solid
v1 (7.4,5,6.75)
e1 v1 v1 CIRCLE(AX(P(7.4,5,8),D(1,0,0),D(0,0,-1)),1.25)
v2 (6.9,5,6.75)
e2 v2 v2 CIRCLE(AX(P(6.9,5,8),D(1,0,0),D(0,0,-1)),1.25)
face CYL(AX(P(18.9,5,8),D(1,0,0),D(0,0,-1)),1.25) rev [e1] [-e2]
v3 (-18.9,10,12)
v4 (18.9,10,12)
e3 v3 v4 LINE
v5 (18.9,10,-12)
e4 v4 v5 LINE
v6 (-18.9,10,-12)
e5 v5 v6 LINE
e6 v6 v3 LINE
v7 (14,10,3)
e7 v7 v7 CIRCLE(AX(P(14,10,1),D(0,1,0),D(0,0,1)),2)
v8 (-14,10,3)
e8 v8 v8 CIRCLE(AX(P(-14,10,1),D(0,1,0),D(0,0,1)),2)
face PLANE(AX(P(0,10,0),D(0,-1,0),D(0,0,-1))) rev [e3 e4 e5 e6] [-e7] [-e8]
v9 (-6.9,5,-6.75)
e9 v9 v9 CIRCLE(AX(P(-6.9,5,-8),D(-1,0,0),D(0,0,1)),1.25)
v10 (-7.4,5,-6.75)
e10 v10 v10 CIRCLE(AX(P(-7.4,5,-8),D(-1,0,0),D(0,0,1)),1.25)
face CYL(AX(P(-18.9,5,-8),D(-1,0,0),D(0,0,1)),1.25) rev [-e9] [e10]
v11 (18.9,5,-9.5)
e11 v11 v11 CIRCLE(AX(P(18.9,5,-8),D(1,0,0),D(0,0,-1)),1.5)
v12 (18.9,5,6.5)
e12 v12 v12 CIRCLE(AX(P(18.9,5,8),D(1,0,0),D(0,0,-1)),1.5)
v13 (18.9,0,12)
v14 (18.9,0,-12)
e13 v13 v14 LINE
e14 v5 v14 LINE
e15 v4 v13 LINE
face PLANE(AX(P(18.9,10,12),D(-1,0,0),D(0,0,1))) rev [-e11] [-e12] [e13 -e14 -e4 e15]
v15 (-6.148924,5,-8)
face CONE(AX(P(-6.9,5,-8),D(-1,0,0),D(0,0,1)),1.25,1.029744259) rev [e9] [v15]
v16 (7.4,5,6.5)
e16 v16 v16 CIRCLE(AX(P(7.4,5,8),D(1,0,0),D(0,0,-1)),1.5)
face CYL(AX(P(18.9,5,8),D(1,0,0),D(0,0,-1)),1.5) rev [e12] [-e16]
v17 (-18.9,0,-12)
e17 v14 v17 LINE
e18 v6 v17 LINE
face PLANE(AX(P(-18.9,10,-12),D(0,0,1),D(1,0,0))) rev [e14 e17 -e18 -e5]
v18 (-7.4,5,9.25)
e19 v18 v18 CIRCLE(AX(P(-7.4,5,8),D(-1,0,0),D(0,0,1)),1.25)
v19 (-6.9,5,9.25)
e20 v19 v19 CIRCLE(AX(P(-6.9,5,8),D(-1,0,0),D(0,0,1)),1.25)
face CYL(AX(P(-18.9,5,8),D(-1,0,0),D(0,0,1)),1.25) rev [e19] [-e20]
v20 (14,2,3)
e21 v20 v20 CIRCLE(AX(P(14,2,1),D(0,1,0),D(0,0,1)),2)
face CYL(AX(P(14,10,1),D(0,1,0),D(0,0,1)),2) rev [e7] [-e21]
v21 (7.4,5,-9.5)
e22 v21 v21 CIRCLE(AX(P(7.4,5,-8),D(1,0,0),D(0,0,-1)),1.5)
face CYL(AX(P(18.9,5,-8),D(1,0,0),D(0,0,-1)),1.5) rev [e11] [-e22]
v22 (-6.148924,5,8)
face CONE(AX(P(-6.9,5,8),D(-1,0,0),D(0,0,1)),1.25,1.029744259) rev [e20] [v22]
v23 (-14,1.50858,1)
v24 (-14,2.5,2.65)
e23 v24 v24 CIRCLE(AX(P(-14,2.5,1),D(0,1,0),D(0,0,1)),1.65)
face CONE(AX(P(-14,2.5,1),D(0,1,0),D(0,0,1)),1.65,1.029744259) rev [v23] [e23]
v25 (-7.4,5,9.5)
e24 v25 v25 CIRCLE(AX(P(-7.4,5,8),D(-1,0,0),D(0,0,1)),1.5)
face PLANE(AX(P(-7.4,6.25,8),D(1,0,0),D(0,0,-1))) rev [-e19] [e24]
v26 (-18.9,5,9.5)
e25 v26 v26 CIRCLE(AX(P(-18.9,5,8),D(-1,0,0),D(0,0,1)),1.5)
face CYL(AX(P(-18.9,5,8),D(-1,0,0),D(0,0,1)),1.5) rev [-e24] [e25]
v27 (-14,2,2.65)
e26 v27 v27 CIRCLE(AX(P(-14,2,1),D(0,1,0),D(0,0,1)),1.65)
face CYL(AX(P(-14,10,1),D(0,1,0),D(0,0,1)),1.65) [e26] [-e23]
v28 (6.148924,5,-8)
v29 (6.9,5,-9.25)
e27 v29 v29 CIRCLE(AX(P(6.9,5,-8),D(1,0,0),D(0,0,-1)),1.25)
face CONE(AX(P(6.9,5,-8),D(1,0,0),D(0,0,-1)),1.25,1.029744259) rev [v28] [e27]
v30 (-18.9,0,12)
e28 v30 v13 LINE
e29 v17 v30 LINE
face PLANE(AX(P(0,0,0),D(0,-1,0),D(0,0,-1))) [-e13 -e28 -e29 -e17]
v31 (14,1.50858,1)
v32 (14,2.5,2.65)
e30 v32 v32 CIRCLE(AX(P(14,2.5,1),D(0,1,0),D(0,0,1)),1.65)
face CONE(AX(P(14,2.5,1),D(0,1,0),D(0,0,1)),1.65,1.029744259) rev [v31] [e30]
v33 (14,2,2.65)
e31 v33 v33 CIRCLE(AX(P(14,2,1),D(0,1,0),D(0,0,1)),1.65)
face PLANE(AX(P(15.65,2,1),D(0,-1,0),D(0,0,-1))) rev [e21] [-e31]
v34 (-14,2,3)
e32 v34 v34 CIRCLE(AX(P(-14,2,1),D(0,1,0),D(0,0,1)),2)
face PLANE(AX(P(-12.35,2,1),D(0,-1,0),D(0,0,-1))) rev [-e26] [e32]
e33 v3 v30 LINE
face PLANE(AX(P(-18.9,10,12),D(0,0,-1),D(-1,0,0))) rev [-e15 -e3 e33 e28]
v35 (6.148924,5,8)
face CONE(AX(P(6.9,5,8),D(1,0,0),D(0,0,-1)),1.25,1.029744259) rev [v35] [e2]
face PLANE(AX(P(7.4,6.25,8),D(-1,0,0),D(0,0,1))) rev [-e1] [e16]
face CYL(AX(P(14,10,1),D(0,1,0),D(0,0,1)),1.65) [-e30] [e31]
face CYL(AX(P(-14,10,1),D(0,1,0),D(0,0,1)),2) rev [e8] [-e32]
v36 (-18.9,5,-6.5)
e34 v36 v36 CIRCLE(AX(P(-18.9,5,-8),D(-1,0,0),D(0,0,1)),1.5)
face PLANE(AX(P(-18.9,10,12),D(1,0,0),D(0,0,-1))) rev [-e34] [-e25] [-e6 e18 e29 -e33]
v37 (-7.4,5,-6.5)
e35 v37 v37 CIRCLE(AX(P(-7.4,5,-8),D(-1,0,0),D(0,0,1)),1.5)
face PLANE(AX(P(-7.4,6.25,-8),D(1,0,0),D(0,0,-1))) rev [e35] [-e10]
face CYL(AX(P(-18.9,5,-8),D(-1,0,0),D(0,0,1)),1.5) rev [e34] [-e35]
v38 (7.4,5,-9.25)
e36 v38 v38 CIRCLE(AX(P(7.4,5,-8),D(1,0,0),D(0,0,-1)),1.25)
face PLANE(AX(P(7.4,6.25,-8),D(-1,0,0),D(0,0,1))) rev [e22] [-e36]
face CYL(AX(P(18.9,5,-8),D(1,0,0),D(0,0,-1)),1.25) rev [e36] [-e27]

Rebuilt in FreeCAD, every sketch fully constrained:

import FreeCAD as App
import Part
import Sketcher
from FreeCAD import Vector
Q = App.Units.Quantity

doc = App.newDocument("Part")
params = doc.addObject("Spreadsheet::Sheet", "Params")
for row, (alias, value) in enumerate([
    ("sketch1_height", "24 mm"),
    ("sketch1_width", "37.8 mm"),
    ("pad1_length", "10 mm"),
    ("sketch2_width", "8 mm"),
    ("sketch2_height", "2 mm"),
    ("sketch2_width2", "0.5 mm"),
    ("sketch2_height2", "0.35 mm"),
    ("groove_angle", "360 deg"),
    ("linearpattern_pitch", "28 mm"),
    ("sketch3_width", "11.5 mm"),
    ("sketch3_width2", "0.5 mm"),
    ("sketch3_height", "1.5 mm"),
    ("sketch3_height2", "0.25 mm"),
    ("groove2_angle", "360 deg"),
    ("linearpattern2_pitch", "16 mm"),
    ("sketch4_width", "0.5 mm"),
    ("sketch4_width2", "11.5 mm"),
    ("sketch4_height", "1.5 mm"),
    ("sketch4_height2", "0.25 mm"),
    ("groove3_angle", "360 deg"),
], start=1):
    params.set(f"A{row}", alias)
    params.set(f"B{row}", "=" + value)
    params.setAlias(f"B{row}", alias)

body = doc.addObject("PartDesign::Body", "Body")

# Sketch on XZ plane
sketch1 = body.newObject("Sketcher::SketchObject", "Sketch")
sketch1.AttachmentSupport = (doc.getObject("XZ_Plane"), [""])
sketch1.MapMode = "FlatFace"
sketch1.addGeometry(Part.LineSegment(Vector(-18.9, -12, 0), Vector(-18.9, 12, 0)), False)
sketch1.addGeometry(Part.LineSegment(Vector(-18.9, 12, 0), Vector(18.9, 12, 0)), False)
sketch1.addGeometry(Part.LineSegment(Vector(18.9, 12, 0), Vector(18.9, -12, 0)), False)
sketch1.addGeometry(Part.LineSegment(Vector(18.9, -12, 0), Vector(-18.9, -12, 0)), False)
sketch1.addConstraint(Sketcher.Constraint("Coincident", 0, 2, 1, 1))
sketch1.addConstraint(Sketcher.Constraint("Coincident", 1, 2, 2, 1))
sketch1.addConstraint(Sketcher.Constraint("Coincident", 2, 2, 3, 1))
sketch1.addConstraint(Sketcher.Constraint("Coincident", 3, 2, 0, 1))
sketch1.addConstraint(Sketcher.Constraint("Vertical", 0))
sketch1.addConstraint(Sketcher.Constraint("Horizontal", 1))
sketch1.addConstraint(Sketcher.Constraint("Vertical", 2))
sketch1.addConstraint(Sketcher.Constraint("Horizontal", 3))
sketch1.addConstraint(Sketcher.Constraint("Symmetric", 0, 2, 2, 2, -1, 1))
sketch1.addConstraint(Sketcher.Constraint("DistanceY", 0, 1, 0, 2, Q("24 mm")))
sketch1.addConstraint(Sketcher.Constraint("DistanceX", 1, 1, 1, 2, Q("37.8 mm")))
sketch1.setExpression("Constraints[9]", "Params.sketch1_height")
sketch1.setExpression("Constraints[10]", "Params.sketch1_width")
pad1 = body.newObject("PartDesign::Pad", "Pad")
pad1.Profile = sketch1
pad1.setExpression("Length", "Params.pad1_length")
pad1.Reversed = True

# Sketch on YZ plane
sketch2 = body.newObject("Sketcher::SketchObject", "Sketch001")
sketch2.AttachmentSupport = (doc.getObject("YZ_Plane"), [""])
sketch2.MapMode = "FlatFace"
sketch2.AttachmentOffset = App.Placement(Vector(0, 0, -14), App.Rotation())
sketch2.addGeometry(Part.LineSegment(Vector(1.50858, 1, 0), Vector(10, 1, 0)), False)
sketch2.addGeometry(Part.LineSegment(Vector(10, 1, 0), Vector(10, 3, 0)), False)
sketch2.addGeometry(Part.LineSegment(Vector(10, 3, 0), Vector(2, 3, 0)), False)
sketch2.addGeometry(Part.LineSegment(Vector(2, 3, 0), Vector(2, 2.65, 0)), False)
sketch2.addGeometry(Part.LineSegment(Vector(2, 2.65, 0), Vector(2.5, 2.65, 0)), False)
sketch2.addGeometry(Part.LineSegment(Vector(2.5, 2.65, 0), Vector(1.50858, 1, 0)), False)
sketch2.addGeometry(Part.LineSegment(Vector(10, 1, 0), Vector(1.50858, 1, 0)), True)  # axis
sketch2.addConstraint(Sketcher.Constraint("Coincident", 0, 2, 1, 1))
sketch2.addConstraint(Sketcher.Constraint("Coincident", 1, 2, 2, 1))
sketch2.addConstraint(Sketcher.Constraint("Coincident", 2, 2, 3, 1))
sketch2.addConstraint(Sketcher.Constraint("Coincident", 3, 2, 4, 1))
sketch2.addConstraint(Sketcher.Constraint("Coincident", 4, 2, 5, 1))
sketch2.addConstraint(Sketcher.Constraint("Coincident", 5, 2, 0, 1))
sketch2.addConstraint(Sketcher.Constraint("Horizontal", 0))
sketch2.addConstraint(Sketcher.Constraint("Vertical", 1))
sketch2.addConstraint(Sketcher.Constraint("Horizontal", 2))
sketch2.addConstraint(Sketcher.Constraint("Vertical", 3))
sketch2.addConstraint(Sketcher.Constraint("Horizontal", 4))
sketch2.addConstraint(Sketcher.Constraint("Horizontal", 6))
sketch2.addConstraint(Sketcher.Constraint("Coincident", 6, 1, 0, 2))
sketch2.addConstraint(Sketcher.Constraint("Equal", 0, 6))
sketch2.addConstraint(Sketcher.Constraint("DistanceX", 2, 2, 2, 1, Q("8 mm")))
sketch2.addConstraint(Sketcher.Constraint("DistanceY", 1, 1, 1, 2, Q("2 mm")))
sketch2.addConstraint(Sketcher.Constraint("Angle", 5, Q("-121 deg")))
sketch2.addConstraint(Sketcher.Constraint("DistanceX", 4, 1, 4, 2, Q("0.5 mm")))
sketch2.addConstraint(Sketcher.Constraint("DistanceX", -1, 1, 0, 2, Q("10 mm")))
sketch2.addConstraint(Sketcher.Constraint("DistanceY", -1, 1, 0, 2, Q("1 mm")))
sketch2.addConstraint(Sketcher.Constraint("DistanceY", 3, 2, 3, 1, Q("0.35 mm")))
sketch2.setExpression("Constraints[14]", "Params.sketch2_width")
sketch2.setExpression("Constraints[15]", "Params.sketch2_height")
sketch2.setExpression("Constraints[17]", "Params.sketch2_width2")
sketch2.setExpression("Constraints[20]", "Params.sketch2_height2")
groove = body.newObject("PartDesign::Groove", "Groove")
groove.Profile = sketch2
groove.ReferenceAxis = (sketch2, ["Axis0"])
groove.setExpression("Angle", "Params.groove_angle")
doc.recompute()

linearpattern = body.newObject("PartDesign::LinearPattern", "LinearPattern")
linearpattern.Originals = [groove]
linearpattern.Direction = (doc.getObject("X_Axis"), [""])
linearpattern.Mode = "offset"
linearpattern.setExpression("Offset", "Params.linearpattern_pitch")
linearpattern.Occurrences = 2
body.Tip = linearpattern

# Sketch on XZ plane
sketch3 = body.newObject("Sketcher::SketchObject", "Sketch002")
sketch3.AttachmentSupport = (doc.getObject("XZ_Plane"), [""])
sketch3.MapMode = "FlatFace"
sketch3.AttachmentOffset = App.Placement(Vector(0, 0, -5), App.Rotation())
sketch3.addGeometry(Part.LineSegment(Vector(6.148924, 8, 0), Vector(18.9, 8, 0)), False)
sketch3.addGeometry(Part.LineSegment(Vector(18.9, 8, 0), Vector(18.9, 6.5, 0)), False)
sketch3.addGeometry(Part.LineSegment(Vector(18.9, 6.5, 0), Vector(7.4, 6.5, 0)), False)
sketch3.addGeometry(Part.LineSegment(Vector(7.4, 6.5, 0), Vector(7.4, 6.75, 0)), False)
sketch3.addGeometry(Part.LineSegment(Vector(7.4, 6.75, 0), Vector(6.9, 6.75, 0)), False)
sketch3.addGeometry(Part.LineSegment(Vector(6.9, 6.75, 0), Vector(6.148924, 8, 0)), False)
sketch3.addGeometry(Part.LineSegment(Vector(18.9, 8, 0), Vector(6.148924, 8, 0)), True)  # axis
sketch3.addConstraint(Sketcher.Constraint("Coincident", 0, 2, 1, 1))
sketch3.addConstraint(Sketcher.Constraint("Coincident", 1, 2, 2, 1))
sketch3.addConstraint(Sketcher.Constraint("Coincident", 2, 2, 3, 1))
sketch3.addConstraint(Sketcher.Constraint("Coincident", 3, 2, 4, 1))
sketch3.addConstraint(Sketcher.Constraint("Coincident", 4, 2, 5, 1))
sketch3.addConstraint(Sketcher.Constraint("Coincident", 5, 2, 0, 1))
sketch3.addConstraint(Sketcher.Constraint("Horizontal", 0))
sketch3.addConstraint(Sketcher.Constraint("Vertical", 1))
sketch3.addConstraint(Sketcher.Constraint("Horizontal", 2))
sketch3.addConstraint(Sketcher.Constraint("Vertical", 3))
sketch3.addConstraint(Sketcher.Constraint("Horizontal", 4))
sketch3.addConstraint(Sketcher.Constraint("Horizontal", 6))
sketch3.addConstraint(Sketcher.Constraint("Coincident", 6, 1, 0, 2))
sketch3.addConstraint(Sketcher.Constraint("Equal", 0, 6))
sketch3.addConstraint(Sketcher.Constraint("Angle", 5, Q("121 deg")))
sketch3.addConstraint(Sketcher.Constraint("DistanceX", 2, 2, 2, 1, Q("11.5 mm")))
sketch3.addConstraint(Sketcher.Constraint("DistanceX", 4, 2, 4, 1, Q("0.5 mm")))
sketch3.addConstraint(Sketcher.Constraint("DistanceY", 1, 2, 1, 1, Q("1.5 mm")))
sketch3.addConstraint(Sketcher.Constraint("DistanceY", -1, 1, 0, 2, Q("8 mm")))
sketch3.addConstraint(Sketcher.Constraint("DistanceY", 3, 1, 3, 2, Q("0.25 mm")))
sketch3.addConstraint(Sketcher.Constraint("DistanceX", -1, 1, 0, 2, Q("18.9 mm")))
sketch3.setExpression("Constraints[15]", "Params.sketch3_width")
sketch3.setExpression("Constraints[16]", "Params.sketch3_width2")
sketch3.setExpression("Constraints[17]", "Params.sketch3_height")
sketch3.setExpression("Constraints[19]", "Params.sketch3_height2")
groove2 = body.newObject("PartDesign::Groove", "Groove001")
groove2.Profile = sketch3
groove2.ReferenceAxis = (sketch3, ["Axis0"])
groove2.setExpression("Angle", "Params.groove2_angle")
doc.recompute()

linearpattern2 = body.newObject("PartDesign::LinearPattern", "LinearPattern001")
linearpattern2.Originals = [groove2]
linearpattern2.Direction = (doc.getObject("Z_Axis"), [""])
linearpattern2.Mode = "offset"
linearpattern2.setExpression("Offset", "Params.linearpattern2_pitch")
linearpattern2.Occurrences = 2
linearpattern2.Reversed = True
body.Tip = linearpattern2
doc.recompute()

mirrored = body.newObject("PartDesign::Mirrored", "Mirrored")
mirrored.Originals = [groove2]
mirrored.MirrorPlane = (doc.getObject("YZ_Plane"), [""])
body.Tip = mirrored

# Sketch on XZ plane
sketch4 = body.newObject("Sketcher::SketchObject", "Sketch003")
sketch4.AttachmentSupport = (doc.getObject("XZ_Plane"), [""])
sketch4.MapMode = "FlatFace"
sketch4.AttachmentOffset = App.Placement(Vector(0, 0, -5), App.Rotation())
sketch4.addGeometry(Part.LineSegment(Vector(-18.9, -8, 0), Vector(-6.148924, -8, 0)), False)
sketch4.addGeometry(Part.LineSegment(Vector(-6.148924, -8, 0), Vector(-6.9, -9.25, 0)), False)
sketch4.addGeometry(Part.LineSegment(Vector(-6.9, -9.25, 0), Vector(-7.4, -9.25, 0)), False)
sketch4.addGeometry(Part.LineSegment(Vector(-7.4, -9.25, 0), Vector(-7.4, -9.5, 0)), False)
sketch4.addGeometry(Part.LineSegment(Vector(-7.4, -9.5, 0), Vector(-18.9, -9.5, 0)), False)
sketch4.addGeometry(Part.LineSegment(Vector(-18.9, -9.5, 0), Vector(-18.9, -8, 0)), False)
sketch4.addGeometry(Part.LineSegment(Vector(-6.148924, -8, 0), Vector(-18.9, -8, 0)), True)  # axis
sketch4.addConstraint(Sketcher.Constraint("Coincident", 0, 2, 1, 1))
sketch4.addConstraint(Sketcher.Constraint("Coincident", 1, 2, 2, 1))
sketch4.addConstraint(Sketcher.Constraint("Coincident", 2, 2, 3, 1))
sketch4.addConstraint(Sketcher.Constraint("Coincident", 3, 2, 4, 1))
sketch4.addConstraint(Sketcher.Constraint("Coincident", 4, 2, 5, 1))
sketch4.addConstraint(Sketcher.Constraint("Coincident", 5, 2, 0, 1))
sketch4.addConstraint(Sketcher.Constraint("Horizontal", 0))
sketch4.addConstraint(Sketcher.Constraint("Horizontal", 2))
sketch4.addConstraint(Sketcher.Constraint("Vertical", 3))
sketch4.addConstraint(Sketcher.Constraint("Horizontal", 4))
sketch4.addConstraint(Sketcher.Constraint("Vertical", 5))
sketch4.addConstraint(Sketcher.Constraint("Horizontal", 6))
sketch4.addConstraint(Sketcher.Constraint("Coincident", 6, 1, 0, 2))
sketch4.addConstraint(Sketcher.Constraint("Vertical", 4, 2, 6, 2))
sketch4.addConstraint(Sketcher.Constraint("Angle", 1, Q("-121 deg")))
sketch4.addConstraint(Sketcher.Constraint("DistanceX", 2, 2, 2, 1, Q("0.5 mm")))
sketch4.addConstraint(Sketcher.Constraint("DistanceX", 4, 2, 4, 1, Q("11.5 mm")))
sketch4.addConstraint(Sketcher.Constraint("DistanceY", 5, 1, 5, 2, Q("1.5 mm")))
sketch4.addConstraint(Sketcher.Constraint("DistanceY", 0, 2, -1, 1, Q("8 mm")))
sketch4.addConstraint(Sketcher.Constraint("DistanceY", 3, 2, 3, 1, Q("0.25 mm")))
sketch4.addConstraint(Sketcher.Constraint("DistanceX", 1, 2, -1, 1, Q("6.9 mm")))
sketch4.setExpression("Constraints[15]", "Params.sketch4_width")
sketch4.setExpression("Constraints[16]", "Params.sketch4_width2")
sketch4.setExpression("Constraints[17]", "Params.sketch4_height")
sketch4.setExpression("Constraints[19]", "Params.sketch4_height2")
groove3 = body.newObject("PartDesign::Groove", "Groove002")
groove3.Profile = sketch4
groove3.ReferenceAxis = (sketch4, ["Axis0"])
groove3.setExpression("Angle", "Params.groove3_angle")

doc.recompute()
